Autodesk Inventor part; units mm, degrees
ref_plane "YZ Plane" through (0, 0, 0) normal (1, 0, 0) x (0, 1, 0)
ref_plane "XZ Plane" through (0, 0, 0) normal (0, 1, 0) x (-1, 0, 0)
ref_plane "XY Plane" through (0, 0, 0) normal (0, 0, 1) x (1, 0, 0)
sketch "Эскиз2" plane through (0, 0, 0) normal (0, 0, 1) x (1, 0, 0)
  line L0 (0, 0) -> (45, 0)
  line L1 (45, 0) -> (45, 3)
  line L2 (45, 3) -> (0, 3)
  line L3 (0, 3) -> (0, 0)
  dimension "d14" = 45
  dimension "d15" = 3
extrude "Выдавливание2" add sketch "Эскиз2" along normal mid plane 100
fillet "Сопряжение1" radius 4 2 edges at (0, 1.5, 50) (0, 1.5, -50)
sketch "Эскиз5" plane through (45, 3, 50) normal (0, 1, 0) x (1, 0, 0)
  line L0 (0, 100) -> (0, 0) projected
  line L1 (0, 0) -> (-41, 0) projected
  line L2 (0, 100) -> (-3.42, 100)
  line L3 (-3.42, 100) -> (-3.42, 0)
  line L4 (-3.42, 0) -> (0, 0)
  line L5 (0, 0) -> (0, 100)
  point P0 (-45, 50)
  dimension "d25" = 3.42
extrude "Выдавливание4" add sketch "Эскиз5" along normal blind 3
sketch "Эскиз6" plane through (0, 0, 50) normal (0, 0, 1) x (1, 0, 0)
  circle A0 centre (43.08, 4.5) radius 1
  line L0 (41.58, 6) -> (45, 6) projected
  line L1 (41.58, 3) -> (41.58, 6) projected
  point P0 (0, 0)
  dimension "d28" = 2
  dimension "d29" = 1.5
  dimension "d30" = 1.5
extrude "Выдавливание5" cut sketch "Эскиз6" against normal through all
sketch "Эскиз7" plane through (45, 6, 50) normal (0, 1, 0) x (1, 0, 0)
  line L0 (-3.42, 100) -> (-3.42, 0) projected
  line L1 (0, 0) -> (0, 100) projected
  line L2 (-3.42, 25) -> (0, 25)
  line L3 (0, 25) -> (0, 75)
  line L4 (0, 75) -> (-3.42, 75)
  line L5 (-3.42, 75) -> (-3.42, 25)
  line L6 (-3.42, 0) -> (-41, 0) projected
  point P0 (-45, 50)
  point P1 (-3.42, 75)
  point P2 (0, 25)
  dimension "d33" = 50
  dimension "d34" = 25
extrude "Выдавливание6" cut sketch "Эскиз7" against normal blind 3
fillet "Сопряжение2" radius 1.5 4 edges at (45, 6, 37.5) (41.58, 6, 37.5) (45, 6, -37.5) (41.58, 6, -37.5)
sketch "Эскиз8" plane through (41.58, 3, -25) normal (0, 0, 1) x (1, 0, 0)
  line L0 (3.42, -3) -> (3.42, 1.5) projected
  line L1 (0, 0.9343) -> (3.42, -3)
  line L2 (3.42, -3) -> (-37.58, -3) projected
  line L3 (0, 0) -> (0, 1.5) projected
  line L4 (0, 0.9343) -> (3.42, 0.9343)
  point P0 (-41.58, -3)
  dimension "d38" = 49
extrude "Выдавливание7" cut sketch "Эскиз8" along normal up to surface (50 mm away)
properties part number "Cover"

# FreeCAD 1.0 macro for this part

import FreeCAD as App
import Part
import Sketcher
Q = App.Units.Quantity


def edges_at(feature, points):
    """Names of the edges that pass closest to the given points."""
    edges = feature.Shape.Edges
    near = lambda p: min(range(len(edges)), key=lambda i: edges[i].distToShape(Part.Vertex(*p))[0])
    return sorted({f"Edge{near(p) + 1}" for p in points})


def add_polygon(sketch, points):
    """Adds a closed chain of lines whose ends are joined by coincident constraints."""
    first, n = sketch.GeometryCount, len(points)
    for a, b in zip(points, points[1:] + points[:1]):
        sketch.addGeometry(Part.LineSegment(App.Vector(*a, 0), App.Vector(*b, 0)), False)
    for i in range(n):
        sketch.addConstraint(Sketcher.Constraint("Coincident", first + i, 2, first + (i + 1) % n, 1))

doc = App.newDocument("Part")
body = doc.addObject("PartDesign::Body", "Body")

sketch1 = doc.addObject("Sketcher::SketchObject", "Sketch")
body.addObject(sketch1)
sketch1.AttachmentSupport = (doc.XY_Plane, [""])
sketch1.MapMode = "FlatFace"
add_polygon(sketch1, [(0, 3), (0, 0), (45, 0), (45, 3)])
sketch1.addConstraint([
    Sketcher.Constraint("Vertical", 0),
    Sketcher.Constraint("Horizontal", 1),
    Sketcher.Constraint("Vertical", 2),
    Sketcher.Constraint("Horizontal", 3),
    Sketcher.Constraint("Coincident", 0, 2, -1, 1),
    Sketcher.Constraint("DistanceX", 1, 1, 1, 2, Q("45 mm")),
    Sketcher.Constraint("DistanceY", 0, 2, 0, 1, Q("3 mm")),
])
pad1 = doc.addObject("PartDesign::Pad", "Pad")
body.addObject(pad1)
pad1.Profile = sketch1
pad1.Length = 100
pad1.Midplane = True
doc.recompute()

fillet = doc.addObject("PartDesign::Fillet", "Fillet")
body.addObject(fillet)
fillet.Base = (pad1, edges_at(pad1, [(0, 1.5, 50), (0, 1.5, -50)]))
fillet.Radius = 4

sketch2 = doc.addObject("Sketcher::SketchObject", "Sketch001")
body.addObject(sketch2)
sketch2.AttachmentSupport = (doc.XZ_Plane, [""])
sketch2.MapMode = "FlatFace"
sketch2.AttachmentOffset = App.Placement(App.Vector(0, 0, -3), App.Rotation())
add_polygon(sketch2, [(45, 50), (45, -50), (41.6, -50), (41.6, 50)])
sketch2.addConstraint([
    Sketcher.Constraint("Vertical", 0),
    Sketcher.Constraint("Horizontal", 1),
    Sketcher.Constraint("Vertical", 2),
    Sketcher.Constraint("Horizontal", 3),
    Sketcher.Constraint("DistanceX", 1, 2, 1, 1, Q("3.42 mm")),
    Sketcher.Constraint("DistanceY", 0, 2, 0, 1, Q("100 mm")),
    Sketcher.Constraint("DistanceX", -1, 1, 0, 2, Q("45 mm")),
    Sketcher.Constraint("DistanceY", 0, 2, -1, 1, Q("50 mm")),
])
pad2 = doc.addObject("PartDesign::Pad", "Pad001")
body.addObject(pad2)
pad2.Profile = sketch2
pad2.Length = 3
pad2.Reversed = True

sketch3 = doc.addObject("Sketcher::SketchObject", "Sketch002")
body.addObject(sketch3)
sketch3.AttachmentSupport = (doc.XY_Plane, [""])
sketch3.MapMode = "FlatFace"
sketch3.AttachmentOffset = App.Placement(App.Vector(0, 0, 50), App.Rotation())
sketch3.addGeometry(Part.Circle(App.Vector(43.1, 4.5, 0), App.Vector(0, 0, 1), 1), False)
sketch3.addConstraint([
    Sketcher.Constraint("Diameter", 0, Q("2 mm")),
    Sketcher.Constraint("DistanceY", -1, 1, 0, 3, Q("4.5 mm")),
    Sketcher.Constraint("DistanceX", -1, 1, 0, 3, Q("43.08 mm")),
])
pocket1 = doc.addObject("PartDesign::Pocket", "Pocket")
body.addObject(pocket1)
pocket1.Profile = sketch3
pocket1.Type = "ThroughAll"

sketch4 = doc.addObject("Sketcher::SketchObject", "Sketch003")
body.addObject(sketch4)
sketch4.AttachmentSupport = (doc.XZ_Plane, [""])
sketch4.MapMode = "FlatFace"
sketch4.AttachmentOffset = App.Placement(App.Vector(0, 0, -6), App.Rotation())
add_polygon(sketch4, [(45, -25), (41.6, -25), (41.6, 25), (45, 25)])
sketch4.addConstraint([
    Sketcher.Constraint("Horizontal", 0),
    Sketcher.Constraint("Vertical", 1),
    Sketcher.Constraint("Horizontal", 2),
    Sketcher.Constraint("Vertical", 3),
    Sketcher.Constraint("DistanceY", 1, 1, 1, 2, Q("50 mm")),
    Sketcher.Constraint("DistanceY", 0, 2, -1, 1, Q("25 mm")),
    Sketcher.Constraint("DistanceX", -1, 1, 2, 2, Q("45 mm")),
    Sketcher.Constraint("DistanceX", 0, 2, 0, 1, Q("3.42 mm")),
])
pocket2 = doc.addObject("PartDesign::Pocket", "Pocket001")
body.addObject(pocket2)
pocket2.Profile = sketch4
pocket2.Length = 3
pocket2.Reversed = True
doc.recompute()

fillet2 = doc.addObject("PartDesign::Fillet", "Fillet001")
body.addObject(fillet2)
fillet2.Base = (pocket2, edges_at(pocket2, [
    (45, 6, 37.5),
    (41.58, 6, 37.5),
    (45, 6, -37.5),
    (41.58, 6, -37.5),
]))
fillet2.Radius = 1.5

sketch5 = doc.addObject("Sketcher::SketchObject", "Sketch004")
body.addObject(sketch5)
sketch5.AttachmentSupport = (doc.XY_Plane, [""])
sketch5.MapMode = "FlatFace"
sketch5.AttachmentOffset = App.Placement(App.Vector(0, 0, -25), App.Rotation())
add_polygon(sketch5, [(41.6, 3.9), (45, 0), (45, 3.9)])
sketch5.addConstraint([
    Sketcher.Constraint("Vertical", 1),
    Sketcher.Constraint("Horizontal", 2),
    Sketcher.Constraint("PointOnObject", 0, 2, -1),
    Sketcher.Constraint("Angle", 0, Q("-49.0003 deg")),
    Sketcher.Constraint("DistanceX", -1, 1, 0, 2, Q("45 mm")),
    Sketcher.Constraint("DistanceX", 2, 2, 2, 1, Q("3.42 mm")),
])
pocket3 = doc.addObject("PartDesign::Pocket", "Pocket002")
body.addObject(pocket3)
pocket3.Profile = sketch5
pocket3.Length = 50
pocket3.Reversed = True

doc.recompute()
